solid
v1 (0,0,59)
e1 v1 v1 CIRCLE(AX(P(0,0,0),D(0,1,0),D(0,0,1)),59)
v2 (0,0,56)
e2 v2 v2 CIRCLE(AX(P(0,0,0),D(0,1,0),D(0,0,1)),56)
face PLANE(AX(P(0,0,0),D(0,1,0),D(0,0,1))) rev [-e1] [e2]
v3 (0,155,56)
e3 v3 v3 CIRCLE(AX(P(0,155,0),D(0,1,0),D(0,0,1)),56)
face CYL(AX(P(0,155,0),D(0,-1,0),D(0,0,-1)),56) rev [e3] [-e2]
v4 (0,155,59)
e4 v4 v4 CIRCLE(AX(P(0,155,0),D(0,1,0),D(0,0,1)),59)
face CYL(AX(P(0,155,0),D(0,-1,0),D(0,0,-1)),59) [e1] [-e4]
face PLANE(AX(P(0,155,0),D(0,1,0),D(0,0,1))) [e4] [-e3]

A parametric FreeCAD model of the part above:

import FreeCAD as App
import Part
import Sketcher

V = App.Vector
Q = App.Units.Quantity

doc = App.newDocument("Part")
body = doc.addObject("PartDesign::Body", "Body")

# Sketch on XZ plane
sketch1 = doc.addObject("Sketcher::SketchObject", "Sketch")
body.addObject(sketch1)
sketch1.AttachmentSupport = (doc.XZ_Plane, [""])
sketch1.MapMode = "FlatFace"
sketch1.addGeometry(Part.Circle(V(0, 0, 0), V(0, 0, 1), 59), False)
sketch1.addGeometry(Part.Circle(V(0, 0, 0), V(0, 0, 1), 56), False)
sketch1.addConstraint(Sketcher.Constraint("Coincident", 0, 3, -1, 1))
sketch1.addConstraint(Sketcher.Constraint("Coincident", 1, 3, -1, 1))
sketch1.addConstraint(Sketcher.Constraint("Diameter", 0, Q("118 mm")))
sketch1.addConstraint(Sketcher.Constraint("Diameter", 1, Q("112 mm")))
pad1 = doc.addObject("PartDesign::Pad", "Pad")
body.addObject(pad1)
pad1.Profile = sketch1
pad1.Length = 155
pad1.Reversed = True

doc.recompute()
